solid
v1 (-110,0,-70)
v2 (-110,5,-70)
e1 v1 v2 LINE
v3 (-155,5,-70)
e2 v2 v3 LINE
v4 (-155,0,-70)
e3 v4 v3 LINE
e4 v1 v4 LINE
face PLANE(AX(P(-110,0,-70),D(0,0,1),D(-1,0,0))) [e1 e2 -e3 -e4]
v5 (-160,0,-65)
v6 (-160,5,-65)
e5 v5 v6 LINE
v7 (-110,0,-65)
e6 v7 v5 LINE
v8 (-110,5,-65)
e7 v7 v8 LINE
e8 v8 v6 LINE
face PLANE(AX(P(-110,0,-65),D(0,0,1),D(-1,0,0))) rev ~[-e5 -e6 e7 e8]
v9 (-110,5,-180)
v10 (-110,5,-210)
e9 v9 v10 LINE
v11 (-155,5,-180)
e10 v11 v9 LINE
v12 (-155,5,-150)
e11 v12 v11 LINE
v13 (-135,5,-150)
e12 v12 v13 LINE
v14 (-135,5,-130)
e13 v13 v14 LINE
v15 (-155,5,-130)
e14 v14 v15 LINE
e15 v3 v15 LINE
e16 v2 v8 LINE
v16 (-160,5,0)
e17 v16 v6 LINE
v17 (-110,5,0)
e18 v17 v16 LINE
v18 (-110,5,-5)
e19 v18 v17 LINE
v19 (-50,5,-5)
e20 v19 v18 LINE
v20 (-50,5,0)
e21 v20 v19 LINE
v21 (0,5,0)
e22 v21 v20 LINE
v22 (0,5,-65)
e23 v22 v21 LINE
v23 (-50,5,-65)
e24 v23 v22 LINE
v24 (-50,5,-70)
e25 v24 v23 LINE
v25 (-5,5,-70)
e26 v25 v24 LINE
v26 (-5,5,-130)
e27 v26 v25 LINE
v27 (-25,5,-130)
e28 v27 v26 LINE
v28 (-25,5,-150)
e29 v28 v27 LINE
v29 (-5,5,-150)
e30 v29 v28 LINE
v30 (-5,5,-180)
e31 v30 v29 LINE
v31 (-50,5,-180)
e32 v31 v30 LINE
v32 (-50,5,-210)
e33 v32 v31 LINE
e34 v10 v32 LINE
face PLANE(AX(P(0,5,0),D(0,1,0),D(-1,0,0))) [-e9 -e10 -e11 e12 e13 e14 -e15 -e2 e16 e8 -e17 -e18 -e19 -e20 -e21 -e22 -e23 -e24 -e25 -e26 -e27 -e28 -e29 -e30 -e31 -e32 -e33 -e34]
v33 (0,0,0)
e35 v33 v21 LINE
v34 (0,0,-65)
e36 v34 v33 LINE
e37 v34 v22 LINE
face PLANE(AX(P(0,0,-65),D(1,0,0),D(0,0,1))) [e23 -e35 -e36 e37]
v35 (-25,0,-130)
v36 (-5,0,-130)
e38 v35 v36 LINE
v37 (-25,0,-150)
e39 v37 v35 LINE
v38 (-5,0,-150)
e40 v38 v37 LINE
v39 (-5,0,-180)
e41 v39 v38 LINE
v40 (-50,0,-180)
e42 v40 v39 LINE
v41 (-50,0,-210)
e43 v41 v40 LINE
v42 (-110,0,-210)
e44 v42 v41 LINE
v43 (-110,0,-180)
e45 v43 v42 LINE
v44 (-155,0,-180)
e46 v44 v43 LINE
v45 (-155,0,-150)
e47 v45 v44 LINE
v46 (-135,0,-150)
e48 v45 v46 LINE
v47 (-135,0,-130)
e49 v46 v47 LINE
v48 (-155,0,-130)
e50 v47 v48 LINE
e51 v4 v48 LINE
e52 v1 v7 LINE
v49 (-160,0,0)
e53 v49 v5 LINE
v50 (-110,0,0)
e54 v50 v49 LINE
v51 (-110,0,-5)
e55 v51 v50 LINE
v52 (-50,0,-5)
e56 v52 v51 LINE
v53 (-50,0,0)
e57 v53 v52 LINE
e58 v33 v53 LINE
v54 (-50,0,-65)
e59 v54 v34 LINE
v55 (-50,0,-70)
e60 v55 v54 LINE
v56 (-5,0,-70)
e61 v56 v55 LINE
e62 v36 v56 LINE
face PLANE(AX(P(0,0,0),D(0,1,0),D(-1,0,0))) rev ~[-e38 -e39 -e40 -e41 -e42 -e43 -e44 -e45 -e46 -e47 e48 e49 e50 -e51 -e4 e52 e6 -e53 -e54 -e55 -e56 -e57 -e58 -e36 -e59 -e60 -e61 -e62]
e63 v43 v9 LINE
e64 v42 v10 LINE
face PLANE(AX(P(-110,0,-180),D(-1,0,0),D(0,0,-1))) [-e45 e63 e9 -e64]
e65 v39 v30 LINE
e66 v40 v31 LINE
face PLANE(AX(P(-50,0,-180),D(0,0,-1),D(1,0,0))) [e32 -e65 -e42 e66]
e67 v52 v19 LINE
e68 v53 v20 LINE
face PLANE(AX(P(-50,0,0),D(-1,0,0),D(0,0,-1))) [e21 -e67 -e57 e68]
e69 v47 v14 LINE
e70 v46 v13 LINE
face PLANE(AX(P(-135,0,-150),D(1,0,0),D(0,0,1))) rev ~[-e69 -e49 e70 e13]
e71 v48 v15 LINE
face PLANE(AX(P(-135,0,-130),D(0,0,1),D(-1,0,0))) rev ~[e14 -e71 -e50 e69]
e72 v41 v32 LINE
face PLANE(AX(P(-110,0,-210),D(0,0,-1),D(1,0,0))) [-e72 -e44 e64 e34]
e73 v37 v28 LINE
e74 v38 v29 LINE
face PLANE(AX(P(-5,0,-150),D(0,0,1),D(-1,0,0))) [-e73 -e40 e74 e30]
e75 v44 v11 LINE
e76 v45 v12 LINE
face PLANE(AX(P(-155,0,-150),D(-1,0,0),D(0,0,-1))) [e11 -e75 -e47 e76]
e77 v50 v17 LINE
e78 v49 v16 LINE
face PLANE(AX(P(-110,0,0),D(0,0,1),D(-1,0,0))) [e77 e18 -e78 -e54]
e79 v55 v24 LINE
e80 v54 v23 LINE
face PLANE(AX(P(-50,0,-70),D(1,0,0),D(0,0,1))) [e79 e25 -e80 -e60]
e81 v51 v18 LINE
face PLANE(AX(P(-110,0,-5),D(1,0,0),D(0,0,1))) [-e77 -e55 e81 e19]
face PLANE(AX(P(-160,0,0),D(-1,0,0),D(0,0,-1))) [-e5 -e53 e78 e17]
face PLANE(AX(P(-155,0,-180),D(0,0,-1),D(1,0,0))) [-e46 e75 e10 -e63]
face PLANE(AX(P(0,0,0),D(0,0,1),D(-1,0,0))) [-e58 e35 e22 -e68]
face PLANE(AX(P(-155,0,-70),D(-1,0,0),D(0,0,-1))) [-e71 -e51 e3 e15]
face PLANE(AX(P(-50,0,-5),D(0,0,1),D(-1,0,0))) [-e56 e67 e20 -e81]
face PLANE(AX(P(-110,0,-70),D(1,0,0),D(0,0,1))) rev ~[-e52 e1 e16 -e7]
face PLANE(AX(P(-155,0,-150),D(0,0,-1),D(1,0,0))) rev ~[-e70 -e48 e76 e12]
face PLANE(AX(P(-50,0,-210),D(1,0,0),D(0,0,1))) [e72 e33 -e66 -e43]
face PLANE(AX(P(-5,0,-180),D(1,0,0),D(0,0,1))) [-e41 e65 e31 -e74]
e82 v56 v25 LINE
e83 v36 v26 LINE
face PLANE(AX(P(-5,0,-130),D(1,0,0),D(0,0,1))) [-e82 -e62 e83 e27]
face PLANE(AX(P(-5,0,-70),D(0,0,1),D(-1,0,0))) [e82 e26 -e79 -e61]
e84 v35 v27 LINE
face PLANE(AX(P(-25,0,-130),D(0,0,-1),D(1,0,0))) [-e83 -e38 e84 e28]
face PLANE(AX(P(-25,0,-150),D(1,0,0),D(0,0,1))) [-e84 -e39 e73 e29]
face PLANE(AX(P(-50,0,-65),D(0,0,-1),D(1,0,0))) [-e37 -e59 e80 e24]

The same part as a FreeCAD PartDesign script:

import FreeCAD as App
import Part
import Sketcher
Q = App.Units.Quantity


def add_polygon(sketch, points):
    """Adds a closed chain of lines whose ends are joined by coincident constraints."""
    first, n = sketch.GeometryCount, len(points)
    for a, b in zip(points, points[1:] + points[:1]):
        sketch.addGeometry(Part.LineSegment(App.Vector(*a, 0), App.Vector(*b, 0)), False)
    for i in range(n):
        sketch.addConstraint(Sketcher.Constraint("Coincident", first + i, 2, first + (i + 1) % n, 1))

doc = App.newDocument("Part")
body = doc.addObject("PartDesign::Body", "Body")

# Sketch on XZ plane
sketch1 = body.newObject("Sketcher::SketchObject", "Sketch")
sketch1.AttachmentSupport = (doc.getObject("XZ_Plane"), [""])
sketch1.MapMode = "FlatFace"
add_polygon(sketch1, [(-155, -130), (-155, -70), (-110, -70), (-110, -65), (-160, -65), (-160, 0), (-110, 0), (-110, -5), (-50, -5), (-50, 0), (0, 0), (0, -65), (-50, -65), (-50, -70), (-5, -70), (-5, -130), (-25, -130), (-25, -150), (-5, -150), (-5, -180), (-50, -180), (-50, -210), (-110, -210), (-110, -180), (-155, -180), (-155, -150), (-135, -150), (-135, -130)])  # lines 0-27
sketch1.addConstraint(Sketcher.Constraint("Vertical", 0))
sketch1.addConstraint(Sketcher.Constraint("Horizontal", 1))
sketch1.addConstraint(Sketcher.Constraint("Vertical", 2))
sketch1.addConstraint(Sketcher.Constraint("Horizontal", 3))
sketch1.addConstraint(Sketcher.Constraint("Vertical", 4))
sketch1.addConstraint(Sketcher.Constraint("Horizontal", 5))
sketch1.addConstraint(Sketcher.Constraint("Vertical", 6))
sketch1.addConstraint(Sketcher.Constraint("Horizontal", 7))
sketch1.addConstraint(Sketcher.Constraint("Vertical", 8))
sketch1.addConstraint(Sketcher.Constraint("Horizontal", 9))
sketch1.addConstraint(Sketcher.Constraint("Vertical", 10))
sketch1.addConstraint(Sketcher.Constraint("Horizontal", 11))
sketch1.addConstraint(Sketcher.Constraint("Vertical", 12))
sketch1.addConstraint(Sketcher.Constraint("Horizontal", 13))
sketch1.addConstraint(Sketcher.Constraint("Vertical", 14))
sketch1.addConstraint(Sketcher.Constraint("Horizontal", 15))
sketch1.addConstraint(Sketcher.Constraint("Vertical", 16))
sketch1.addConstraint(Sketcher.Constraint("Horizontal", 17))
sketch1.addConstraint(Sketcher.Constraint("Vertical", 18))
sketch1.addConstraint(Sketcher.Constraint("Horizontal", 19))
sketch1.addConstraint(Sketcher.Constraint("Vertical", 20))
sketch1.addConstraint(Sketcher.Constraint("Horizontal", 21))
sketch1.addConstraint(Sketcher.Constraint("Vertical", 22))
sketch1.addConstraint(Sketcher.Constraint("Horizontal", 23))
sketch1.addConstraint(Sketcher.Constraint("Vertical", 24))
sketch1.addConstraint(Sketcher.Constraint("Horizontal", 25))
sketch1.addConstraint(Sketcher.Constraint("Vertical", 26))
sketch1.addConstraint(Sketcher.Constraint("Horizontal", 27))
sketch1.addConstraint(Sketcher.Constraint("Coincident", 9, 2, -1, 1))
sketch1.addConstraint(Sketcher.Constraint("PointOnObject", 4, 2, -1))
sketch1.addConstraint(Sketcher.Constraint("Horizontal", 3, 2, 10, 2))
sketch1.addConstraint(Sketcher.Constraint("Horizontal", 1, 2, 12, 2))
sketch1.addConstraint(Sketcher.Constraint("Horizontal", 19, 2, 22, 2))
sketch1.addConstraint(Sketcher.Constraint("Horizontal", 17, 2, 24, 2))
sketch1.addConstraint(Sketcher.Constraint("Horizontal", 15, 2, 26, 2))
sketch1.addConstraint(Sketcher.Constraint("Vertical", 2, 2, 5, 2))
sketch1.addConstraint(Sketcher.Constraint("Vertical", 8, 2, 11, 2))
sketch1.addConstraint(Sketcher.Constraint("Vertical", 14, 2, 17, 2))
sketch1.addConstraint(Sketcher.Constraint("Vertical", 12, 2, 19, 2))
sketch1.addConstraint(Sketcher.Constraint("Vertical", 6, 2, 21, 2))
sketch1.addConstraint(Sketcher.Constraint("Vertical", 0, 2, 23, 2))
sketch1.addConstraint(Sketcher.Constraint("Equal", 5, 9))
sketch1.addConstraint(Sketcher.Constraint("Equal", 1, 13))
sketch1.addConstraint(Sketcher.Constraint("Equal", 17, 25))
sketch1.addConstraint(Sketcher.Constraint("Equal", 21, 0))
sketch1.addConstraint(Sketcher.Constraint("Equal", 2, 6))
sketch1.addConstraint(Sketcher.Constraint("Equal", 27, 16))
sketch1.addConstraint(Sketcher.Constraint("Equal", 18, 20))
sketch1.addConstraint(Sketcher.Constraint("DistanceX", 1, 1, 1, 2, Q("45 mm")))
sketch1.addConstraint(Sketcher.Constraint("DistanceX", 3, 2, 3, 1, Q("50 mm")))
sketch1.addConstraint(Sketcher.Constraint("DistanceX", 15, 2, 15, 1, Q("20 mm")))
sketch1.addConstraint(Sketcher.Constraint("DistanceY", 2, 1, 2, 2, Q("5 mm")))
sketch1.addConstraint(Sketcher.Constraint("DistanceY", 18, 2, 18, 1, Q("30 mm")))
sketch1.addConstraint(Sketcher.Constraint("DistanceY", 0, 2, -1, 1, Q("70 mm")))
sketch1.addConstraint(Sketcher.Constraint("DistanceX", 1, 2, -1, 1, Q("110 mm")))
pad1 = body.newObject("PartDesign::Pad", "Pad")
pad1.Profile = sketch1
pad1.Length = 5
pad1.Reversed = True

doc.recompute()
